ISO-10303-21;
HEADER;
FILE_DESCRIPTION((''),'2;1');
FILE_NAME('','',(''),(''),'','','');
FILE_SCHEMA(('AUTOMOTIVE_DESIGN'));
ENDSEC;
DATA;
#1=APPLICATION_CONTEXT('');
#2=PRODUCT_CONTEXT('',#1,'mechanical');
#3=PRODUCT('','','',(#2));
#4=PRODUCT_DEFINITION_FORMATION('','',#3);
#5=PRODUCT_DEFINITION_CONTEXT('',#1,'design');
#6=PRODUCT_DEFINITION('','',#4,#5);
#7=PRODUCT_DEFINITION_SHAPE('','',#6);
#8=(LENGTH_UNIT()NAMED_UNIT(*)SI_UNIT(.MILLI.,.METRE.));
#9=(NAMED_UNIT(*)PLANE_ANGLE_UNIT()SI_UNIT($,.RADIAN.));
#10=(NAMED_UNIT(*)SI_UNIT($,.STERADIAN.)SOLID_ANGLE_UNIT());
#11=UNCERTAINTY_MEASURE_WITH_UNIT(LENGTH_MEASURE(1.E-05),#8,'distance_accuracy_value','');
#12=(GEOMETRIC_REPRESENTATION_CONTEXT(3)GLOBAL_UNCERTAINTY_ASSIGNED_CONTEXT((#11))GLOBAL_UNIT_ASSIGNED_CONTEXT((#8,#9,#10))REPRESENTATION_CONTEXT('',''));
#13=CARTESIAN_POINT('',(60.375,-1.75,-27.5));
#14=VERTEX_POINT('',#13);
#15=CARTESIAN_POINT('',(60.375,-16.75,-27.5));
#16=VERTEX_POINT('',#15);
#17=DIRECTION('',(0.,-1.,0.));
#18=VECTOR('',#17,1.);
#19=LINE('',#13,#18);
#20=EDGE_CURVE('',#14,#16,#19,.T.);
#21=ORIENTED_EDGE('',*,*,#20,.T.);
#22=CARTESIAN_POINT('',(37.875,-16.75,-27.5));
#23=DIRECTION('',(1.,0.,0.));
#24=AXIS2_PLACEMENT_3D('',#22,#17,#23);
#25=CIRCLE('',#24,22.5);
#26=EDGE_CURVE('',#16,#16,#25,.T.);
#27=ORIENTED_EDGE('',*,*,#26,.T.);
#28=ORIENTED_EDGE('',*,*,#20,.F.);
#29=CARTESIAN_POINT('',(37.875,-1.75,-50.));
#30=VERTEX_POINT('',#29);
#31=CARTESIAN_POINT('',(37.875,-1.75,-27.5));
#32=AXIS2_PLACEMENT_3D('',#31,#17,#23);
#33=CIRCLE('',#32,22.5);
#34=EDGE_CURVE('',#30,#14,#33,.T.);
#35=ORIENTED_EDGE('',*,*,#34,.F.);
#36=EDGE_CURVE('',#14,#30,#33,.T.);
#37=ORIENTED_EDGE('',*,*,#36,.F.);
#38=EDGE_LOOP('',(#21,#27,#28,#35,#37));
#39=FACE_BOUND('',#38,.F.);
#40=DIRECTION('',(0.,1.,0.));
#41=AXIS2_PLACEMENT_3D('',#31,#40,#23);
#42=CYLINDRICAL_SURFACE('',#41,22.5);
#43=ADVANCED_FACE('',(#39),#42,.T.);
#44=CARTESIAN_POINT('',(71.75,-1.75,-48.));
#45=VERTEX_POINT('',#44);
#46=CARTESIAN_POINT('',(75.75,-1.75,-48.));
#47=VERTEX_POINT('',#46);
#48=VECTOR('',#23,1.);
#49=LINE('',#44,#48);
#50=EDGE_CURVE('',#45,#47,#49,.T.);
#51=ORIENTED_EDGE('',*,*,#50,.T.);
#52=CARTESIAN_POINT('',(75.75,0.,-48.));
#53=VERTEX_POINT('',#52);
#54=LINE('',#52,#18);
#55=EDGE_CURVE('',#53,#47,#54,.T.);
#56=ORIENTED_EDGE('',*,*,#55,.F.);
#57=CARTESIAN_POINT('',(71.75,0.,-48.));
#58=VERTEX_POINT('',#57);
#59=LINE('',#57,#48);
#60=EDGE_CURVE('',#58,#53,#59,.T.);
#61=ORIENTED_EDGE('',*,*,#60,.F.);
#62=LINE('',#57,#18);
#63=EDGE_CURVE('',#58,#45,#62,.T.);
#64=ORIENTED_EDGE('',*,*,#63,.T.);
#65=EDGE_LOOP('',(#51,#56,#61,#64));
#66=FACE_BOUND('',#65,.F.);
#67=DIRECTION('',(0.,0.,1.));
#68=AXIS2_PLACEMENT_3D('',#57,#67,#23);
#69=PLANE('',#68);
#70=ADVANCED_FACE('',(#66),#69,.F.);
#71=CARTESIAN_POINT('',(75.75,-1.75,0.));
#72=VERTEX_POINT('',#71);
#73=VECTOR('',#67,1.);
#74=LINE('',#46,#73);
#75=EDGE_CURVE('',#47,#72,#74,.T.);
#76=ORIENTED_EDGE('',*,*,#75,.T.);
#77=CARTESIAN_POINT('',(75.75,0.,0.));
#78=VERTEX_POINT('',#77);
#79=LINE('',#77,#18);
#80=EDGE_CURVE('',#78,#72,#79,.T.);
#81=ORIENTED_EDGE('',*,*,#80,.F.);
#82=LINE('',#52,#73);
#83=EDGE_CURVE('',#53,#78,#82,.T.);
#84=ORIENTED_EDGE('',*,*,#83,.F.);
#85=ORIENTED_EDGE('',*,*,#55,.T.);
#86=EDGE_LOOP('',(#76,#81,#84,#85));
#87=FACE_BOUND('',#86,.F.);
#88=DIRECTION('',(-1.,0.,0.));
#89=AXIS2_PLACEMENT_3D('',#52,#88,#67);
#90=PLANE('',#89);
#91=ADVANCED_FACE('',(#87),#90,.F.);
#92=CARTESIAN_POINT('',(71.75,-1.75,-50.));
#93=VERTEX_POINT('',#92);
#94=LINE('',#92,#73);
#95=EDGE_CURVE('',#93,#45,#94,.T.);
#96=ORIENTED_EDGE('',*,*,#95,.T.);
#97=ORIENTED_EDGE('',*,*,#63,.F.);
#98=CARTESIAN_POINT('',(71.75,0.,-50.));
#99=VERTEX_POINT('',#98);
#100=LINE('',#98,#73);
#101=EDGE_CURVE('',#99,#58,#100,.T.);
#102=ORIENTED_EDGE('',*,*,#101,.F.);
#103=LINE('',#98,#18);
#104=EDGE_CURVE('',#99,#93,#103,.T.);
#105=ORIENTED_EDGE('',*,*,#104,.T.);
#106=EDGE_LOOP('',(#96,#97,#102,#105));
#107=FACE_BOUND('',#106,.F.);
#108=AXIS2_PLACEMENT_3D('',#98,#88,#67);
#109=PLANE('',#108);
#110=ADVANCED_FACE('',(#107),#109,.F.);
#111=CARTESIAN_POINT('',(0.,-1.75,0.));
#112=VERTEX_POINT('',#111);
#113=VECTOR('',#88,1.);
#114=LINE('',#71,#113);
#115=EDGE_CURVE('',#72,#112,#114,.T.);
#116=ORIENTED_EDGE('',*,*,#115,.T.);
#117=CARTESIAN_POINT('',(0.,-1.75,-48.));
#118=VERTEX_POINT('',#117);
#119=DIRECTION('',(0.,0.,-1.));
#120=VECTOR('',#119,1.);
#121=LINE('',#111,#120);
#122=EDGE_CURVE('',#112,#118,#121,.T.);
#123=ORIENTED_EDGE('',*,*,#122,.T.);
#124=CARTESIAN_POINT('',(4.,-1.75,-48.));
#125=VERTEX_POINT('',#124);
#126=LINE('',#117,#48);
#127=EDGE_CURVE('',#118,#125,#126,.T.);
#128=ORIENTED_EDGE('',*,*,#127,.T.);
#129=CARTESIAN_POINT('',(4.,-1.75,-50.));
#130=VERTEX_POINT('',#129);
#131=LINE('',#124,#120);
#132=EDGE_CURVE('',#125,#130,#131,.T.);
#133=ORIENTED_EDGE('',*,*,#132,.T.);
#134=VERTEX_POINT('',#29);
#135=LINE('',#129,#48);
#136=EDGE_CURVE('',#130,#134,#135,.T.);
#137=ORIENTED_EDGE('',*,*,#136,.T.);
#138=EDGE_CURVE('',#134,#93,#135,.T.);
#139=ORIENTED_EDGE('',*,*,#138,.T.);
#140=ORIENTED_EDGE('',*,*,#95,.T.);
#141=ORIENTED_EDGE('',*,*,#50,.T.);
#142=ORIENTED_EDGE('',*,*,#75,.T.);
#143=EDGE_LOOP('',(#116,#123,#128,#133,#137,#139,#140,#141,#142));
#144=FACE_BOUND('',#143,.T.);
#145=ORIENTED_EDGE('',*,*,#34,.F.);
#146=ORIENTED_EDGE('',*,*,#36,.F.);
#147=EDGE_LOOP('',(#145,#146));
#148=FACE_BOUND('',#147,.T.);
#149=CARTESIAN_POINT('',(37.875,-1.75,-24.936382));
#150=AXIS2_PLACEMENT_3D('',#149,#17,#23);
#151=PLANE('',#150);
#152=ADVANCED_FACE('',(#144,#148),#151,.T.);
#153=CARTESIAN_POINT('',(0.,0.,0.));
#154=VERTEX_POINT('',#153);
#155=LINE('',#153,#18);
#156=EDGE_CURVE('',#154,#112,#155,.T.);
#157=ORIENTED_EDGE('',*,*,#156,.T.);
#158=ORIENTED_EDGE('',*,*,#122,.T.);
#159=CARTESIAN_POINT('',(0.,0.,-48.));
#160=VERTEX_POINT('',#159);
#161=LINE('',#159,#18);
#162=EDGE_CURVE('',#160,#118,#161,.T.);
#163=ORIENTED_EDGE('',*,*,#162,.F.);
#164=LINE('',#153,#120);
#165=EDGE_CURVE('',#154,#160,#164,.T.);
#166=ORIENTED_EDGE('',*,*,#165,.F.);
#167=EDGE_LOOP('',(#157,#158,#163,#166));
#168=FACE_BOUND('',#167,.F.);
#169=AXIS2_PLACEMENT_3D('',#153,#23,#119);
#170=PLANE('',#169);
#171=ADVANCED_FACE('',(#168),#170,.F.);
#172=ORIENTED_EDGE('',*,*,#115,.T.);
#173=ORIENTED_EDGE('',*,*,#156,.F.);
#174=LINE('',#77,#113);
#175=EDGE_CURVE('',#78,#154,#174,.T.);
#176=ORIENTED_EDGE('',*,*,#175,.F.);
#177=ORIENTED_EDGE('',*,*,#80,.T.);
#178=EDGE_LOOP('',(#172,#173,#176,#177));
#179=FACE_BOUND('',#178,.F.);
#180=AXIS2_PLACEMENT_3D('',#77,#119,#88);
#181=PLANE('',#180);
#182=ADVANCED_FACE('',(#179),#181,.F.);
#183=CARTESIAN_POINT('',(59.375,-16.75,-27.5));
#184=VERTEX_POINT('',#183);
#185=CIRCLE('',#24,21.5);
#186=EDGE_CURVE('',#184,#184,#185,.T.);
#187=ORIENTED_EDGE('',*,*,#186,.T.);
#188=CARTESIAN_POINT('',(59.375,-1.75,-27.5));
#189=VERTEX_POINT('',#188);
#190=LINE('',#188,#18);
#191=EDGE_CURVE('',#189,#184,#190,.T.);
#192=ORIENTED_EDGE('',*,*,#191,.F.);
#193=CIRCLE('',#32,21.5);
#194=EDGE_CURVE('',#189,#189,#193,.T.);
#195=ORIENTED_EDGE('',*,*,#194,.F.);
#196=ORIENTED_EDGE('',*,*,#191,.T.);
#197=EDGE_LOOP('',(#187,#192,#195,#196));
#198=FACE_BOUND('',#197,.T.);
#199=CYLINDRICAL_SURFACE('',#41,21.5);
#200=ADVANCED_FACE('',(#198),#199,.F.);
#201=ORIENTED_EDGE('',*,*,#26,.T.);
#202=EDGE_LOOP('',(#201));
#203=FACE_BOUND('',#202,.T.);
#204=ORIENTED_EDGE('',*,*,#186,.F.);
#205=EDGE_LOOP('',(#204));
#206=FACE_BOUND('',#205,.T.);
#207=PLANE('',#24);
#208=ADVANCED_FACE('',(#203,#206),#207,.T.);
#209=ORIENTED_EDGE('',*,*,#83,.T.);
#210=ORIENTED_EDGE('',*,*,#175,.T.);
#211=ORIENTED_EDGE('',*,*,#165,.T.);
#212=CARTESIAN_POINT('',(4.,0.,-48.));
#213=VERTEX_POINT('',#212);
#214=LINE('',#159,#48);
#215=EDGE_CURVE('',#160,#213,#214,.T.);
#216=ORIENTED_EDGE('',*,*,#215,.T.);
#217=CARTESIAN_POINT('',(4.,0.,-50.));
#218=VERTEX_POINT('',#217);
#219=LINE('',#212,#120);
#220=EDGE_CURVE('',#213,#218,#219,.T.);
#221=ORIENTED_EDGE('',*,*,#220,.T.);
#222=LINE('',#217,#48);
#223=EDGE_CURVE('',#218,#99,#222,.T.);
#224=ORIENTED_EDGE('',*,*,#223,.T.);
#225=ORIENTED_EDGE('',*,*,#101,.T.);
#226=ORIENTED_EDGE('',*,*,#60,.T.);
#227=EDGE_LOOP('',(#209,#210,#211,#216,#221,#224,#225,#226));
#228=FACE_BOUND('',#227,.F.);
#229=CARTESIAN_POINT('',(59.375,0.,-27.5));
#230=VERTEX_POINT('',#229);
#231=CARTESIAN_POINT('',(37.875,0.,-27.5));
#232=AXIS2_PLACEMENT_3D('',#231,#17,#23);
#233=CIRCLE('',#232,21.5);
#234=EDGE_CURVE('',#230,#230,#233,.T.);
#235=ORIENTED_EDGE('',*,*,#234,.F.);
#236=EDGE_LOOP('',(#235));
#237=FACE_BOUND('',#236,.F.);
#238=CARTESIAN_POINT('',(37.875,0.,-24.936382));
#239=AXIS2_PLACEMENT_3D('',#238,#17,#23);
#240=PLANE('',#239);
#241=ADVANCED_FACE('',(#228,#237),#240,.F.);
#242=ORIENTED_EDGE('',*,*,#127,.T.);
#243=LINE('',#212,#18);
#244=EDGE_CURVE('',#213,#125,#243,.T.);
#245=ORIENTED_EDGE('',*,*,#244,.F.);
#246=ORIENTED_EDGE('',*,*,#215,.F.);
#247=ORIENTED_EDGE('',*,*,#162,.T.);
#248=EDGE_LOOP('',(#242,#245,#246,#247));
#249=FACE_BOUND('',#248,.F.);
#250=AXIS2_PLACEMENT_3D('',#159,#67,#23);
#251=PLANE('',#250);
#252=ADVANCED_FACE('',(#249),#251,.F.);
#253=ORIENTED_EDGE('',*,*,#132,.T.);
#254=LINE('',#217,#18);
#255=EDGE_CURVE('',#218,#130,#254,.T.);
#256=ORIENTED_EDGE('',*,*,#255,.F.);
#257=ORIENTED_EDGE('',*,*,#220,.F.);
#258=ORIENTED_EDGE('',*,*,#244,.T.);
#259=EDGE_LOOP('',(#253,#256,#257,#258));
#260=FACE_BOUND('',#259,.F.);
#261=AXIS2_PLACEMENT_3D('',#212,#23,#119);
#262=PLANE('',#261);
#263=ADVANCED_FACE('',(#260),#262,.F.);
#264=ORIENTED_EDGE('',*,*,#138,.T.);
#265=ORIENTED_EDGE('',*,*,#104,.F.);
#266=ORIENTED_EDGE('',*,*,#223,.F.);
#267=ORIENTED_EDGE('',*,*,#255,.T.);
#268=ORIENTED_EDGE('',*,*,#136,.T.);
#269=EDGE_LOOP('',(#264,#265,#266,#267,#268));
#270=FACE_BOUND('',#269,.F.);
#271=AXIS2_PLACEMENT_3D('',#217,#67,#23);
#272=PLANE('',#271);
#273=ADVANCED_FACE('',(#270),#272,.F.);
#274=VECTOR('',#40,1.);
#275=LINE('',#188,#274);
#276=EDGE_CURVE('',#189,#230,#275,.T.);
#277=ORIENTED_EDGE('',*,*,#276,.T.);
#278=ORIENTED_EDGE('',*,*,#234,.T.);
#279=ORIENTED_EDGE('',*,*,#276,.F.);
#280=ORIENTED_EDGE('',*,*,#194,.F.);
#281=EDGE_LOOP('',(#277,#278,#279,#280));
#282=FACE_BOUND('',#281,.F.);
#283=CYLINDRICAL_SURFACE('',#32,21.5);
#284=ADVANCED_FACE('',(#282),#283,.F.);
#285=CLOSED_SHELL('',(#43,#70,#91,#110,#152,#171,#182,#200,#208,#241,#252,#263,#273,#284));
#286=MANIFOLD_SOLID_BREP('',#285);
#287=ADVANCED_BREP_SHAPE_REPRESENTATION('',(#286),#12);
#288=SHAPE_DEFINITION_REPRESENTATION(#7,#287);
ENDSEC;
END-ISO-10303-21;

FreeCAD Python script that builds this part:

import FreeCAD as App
import Part
import Sketcher
from FreeCAD import Vector

doc = App.newDocument("Part")
body = doc.addObject("PartDesign::Body", "Body")

# Sketch on XZ plane
sketch1 = body.newObject("Sketcher::SketchObject", "Sketch")
sketch1.AttachmentSupport = (doc.getObject("XZ_Plane"), [""])
sketch1.MapMode = "FlatFace"
sketch1.addGeometry(Part.LineSegment(Vector(75.8, 0, 0), Vector(0, 0, 0)), False)
sketch1.addGeometry(Part.LineSegment(Vector(0, 0, 0), Vector(0, -48, 0)), False)
sketch1.addGeometry(Part.LineSegment(Vector(0, -48, 0), Vector(4, -48, 0)), False)
sketch1.addGeometry(Part.LineSegment(Vector(4, -48, 0), Vector(4, -50, 0)), False)
sketch1.addGeometry(Part.LineSegment(Vector(4, -50, 0), Vector(71.8, -50, 0)), False)
sketch1.addGeometry(Part.LineSegment(Vector(71.8, -50, 0), Vector(71.8, -48, 0)), False)
sketch1.addGeometry(Part.LineSegment(Vector(71.8, -48, 0), Vector(75.8, -48, 0)), False)
sketch1.addGeometry(Part.LineSegment(Vector(75.8, -48, 0), Vector(75.8, 0, 0)), False)
sketch1.addConstraint(Sketcher.Constraint("Coincident", 0, 2, 1, 1))
sketch1.addConstraint(Sketcher.Constraint("Coincident", 1, 2, 2, 1))
sketch1.addConstraint(Sketcher.Constraint("Coincident", 2, 2, 3, 1))
sketch1.addConstraint(Sketcher.Constraint("Coincident", 3, 2, 4, 1))
sketch1.addConstraint(Sketcher.Constraint("Coincident", 4, 2, 5, 1))
sketch1.addConstraint(Sketcher.Constraint("Coincident", 5, 2, 6, 1))
sketch1.addConstraint(Sketcher.Constraint("Coincident", 6, 2, 7, 1))
sketch1.addConstraint(Sketcher.Constraint("Coincident", 7, 2, 0, 1))
sketch1.addConstraint(Sketcher.Constraint("Horizontal", 0))
sketch1.addConstraint(Sketcher.Constraint("Vertical", 1))
sketch1.addConstraint(Sketcher.Constraint("Horizontal", 2))
sketch1.addConstraint(Sketcher.Constraint("Vertical", 3))
sketch1.addConstraint(Sketcher.Constraint("Horizontal", 4))
sketch1.addConstraint(Sketcher.Constraint("Vertical", 5))
sketch1.addConstraint(Sketcher.Constraint("Horizontal", 6))
sketch1.addConstraint(Sketcher.Constraint("Vertical", 7))
sketch1.addConstraint(Sketcher.Constraint("Coincident", 0, 2, -1, 1))
sketch1.addConstraint(Sketcher.Constraint("Horizontal", 2, 2, 5, 2))
sketch1.addConstraint(Sketcher.Constraint("Equal", 2, 6))
sketch1.addConstraint(Sketcher.Constraint("DistanceX", 2, 1, 2, 2, 4.0))
sketch1.addConstraint(Sketcher.Constraint("DistanceY", 1, 2, 1, 1, 48.0))
sketch1.addConstraint(Sketcher.Constraint("DistanceY", 3, 2, 3, 1, 2.0))
sketch1.addConstraint(Sketcher.Constraint("DistanceX", 0, 2, 0, 1, 75.75))
pad1 = body.newObject("PartDesign::Pad", "Pad")
pad1.Profile = sketch1
pad1.Length = 1.75

# Sketch on XZ plane
sketch2 = body.newObject("Sketcher::SketchObject", "Sketch001")
sketch2.AttachmentSupport = (doc.getObject("XZ_Plane"), [""])
sketch2.MapMode = "FlatFace"
sketch2.AttachmentOffset = App.Placement(Vector(0, 0, 1.75), App.Rotation())
sketch2.addGeometry(Part.Circle(Vector(38, -28, 0), Vector(0, 0, 1), 22), False)
sketch2.addConstraint(Sketcher.Constraint("Diameter", 0, 43.0))
sketch2.addConstraint(Sketcher.Constraint("DistanceY", 0, 3, -1, 1, 27.5))
sketch2.addConstraint(Sketcher.Constraint("DistanceX", -1, 1, 0, 3, 37.875))
pocket1 = body.newObject("PartDesign::Pocket", "Pocket")
pocket1.Profile = sketch2
pocket1.Length = 25

# Sketch on XZ plane
sketch3 = body.newObject("Sketcher::SketchObject", "Sketch002")
sketch3.AttachmentSupport = (doc.getObject("XZ_Plane"), [""])
sketch3.MapMode = "FlatFace"
sketch3.AttachmentOffset = App.Placement(Vector(0, 0, 1.75), App.Rotation())
sketch3.addGeometry(Part.Circle(Vector(38, -28, 0), Vector(0, 0, 1), 22), False)
sketch3.addGeometry(Part.Circle(Vector(38, -28, 0), Vector(0, 0, 1), 22), False)
sketch3.addConstraint(Sketcher.Constraint("Coincident", 1, 3, 0, 3))
sketch3.addConstraint(Sketcher.Constraint("Diameter", 0, 45.0))
sketch3.addConstraint(Sketcher.Constraint("Diameter", 1, 43.0))
sketch3.addConstraint(Sketcher.Constraint("DistanceY", 0, 3, -1, 1, 27.5))
sketch3.addConstraint(Sketcher.Constraint("DistanceX", -1, 1, 0, 3, 37.875))
pad2 = body.newObject("PartDesign::Pad", "Pad001")
pad2.Profile = sketch3
pad2.Length = 15

doc.recompute()
